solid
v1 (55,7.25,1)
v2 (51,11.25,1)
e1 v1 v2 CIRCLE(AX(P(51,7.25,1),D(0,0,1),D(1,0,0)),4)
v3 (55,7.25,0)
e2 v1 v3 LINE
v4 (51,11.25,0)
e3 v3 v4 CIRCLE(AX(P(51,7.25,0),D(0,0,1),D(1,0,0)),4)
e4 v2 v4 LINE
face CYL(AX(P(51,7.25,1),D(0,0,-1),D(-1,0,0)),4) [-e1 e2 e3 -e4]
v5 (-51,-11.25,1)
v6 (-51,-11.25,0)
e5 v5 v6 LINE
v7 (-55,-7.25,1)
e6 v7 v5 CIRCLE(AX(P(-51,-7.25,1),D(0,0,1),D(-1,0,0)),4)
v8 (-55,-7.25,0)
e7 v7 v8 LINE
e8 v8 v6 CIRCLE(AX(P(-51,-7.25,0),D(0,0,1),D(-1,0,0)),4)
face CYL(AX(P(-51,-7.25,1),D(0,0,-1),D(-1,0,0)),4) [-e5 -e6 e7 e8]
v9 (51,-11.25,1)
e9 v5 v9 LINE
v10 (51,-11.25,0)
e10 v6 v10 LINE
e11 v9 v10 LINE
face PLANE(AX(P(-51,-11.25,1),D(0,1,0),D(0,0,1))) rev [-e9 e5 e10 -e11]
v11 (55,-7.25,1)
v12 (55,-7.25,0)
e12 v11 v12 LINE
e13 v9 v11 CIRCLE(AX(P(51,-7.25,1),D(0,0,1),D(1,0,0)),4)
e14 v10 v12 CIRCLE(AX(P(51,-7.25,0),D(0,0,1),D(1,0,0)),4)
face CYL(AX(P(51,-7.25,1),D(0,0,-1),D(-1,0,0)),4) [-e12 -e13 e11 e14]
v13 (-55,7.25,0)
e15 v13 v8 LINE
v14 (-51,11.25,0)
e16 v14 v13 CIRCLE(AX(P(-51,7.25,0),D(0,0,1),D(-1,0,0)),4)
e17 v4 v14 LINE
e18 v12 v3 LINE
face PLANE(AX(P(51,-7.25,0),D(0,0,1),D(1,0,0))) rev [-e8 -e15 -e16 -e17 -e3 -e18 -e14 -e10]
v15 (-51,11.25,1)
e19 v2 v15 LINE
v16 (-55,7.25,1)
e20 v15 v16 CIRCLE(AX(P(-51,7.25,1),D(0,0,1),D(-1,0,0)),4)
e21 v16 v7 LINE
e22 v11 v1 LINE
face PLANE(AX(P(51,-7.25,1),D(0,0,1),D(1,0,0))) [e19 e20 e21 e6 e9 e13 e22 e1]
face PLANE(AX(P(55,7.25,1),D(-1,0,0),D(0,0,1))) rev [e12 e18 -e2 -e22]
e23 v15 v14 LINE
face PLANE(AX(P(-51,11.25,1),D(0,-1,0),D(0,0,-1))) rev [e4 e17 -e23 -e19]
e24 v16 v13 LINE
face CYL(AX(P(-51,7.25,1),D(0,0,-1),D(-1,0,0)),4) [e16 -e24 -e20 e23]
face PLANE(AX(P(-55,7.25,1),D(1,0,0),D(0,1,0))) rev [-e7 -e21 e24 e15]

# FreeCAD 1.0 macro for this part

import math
import FreeCAD as App
import Part
import Sketcher
from FreeCAD import Vector

doc = App.newDocument("Part")
params = doc.addObject("Spreadsheet::Sheet", "Params")
for row, (alias, value) in enumerate([
    ("sketch1_radius", "4 mm"),
    ("sketch1_width", "102 mm"),
    ("sketch1_height", "14.5 mm"),
    ("pad1_length", "1 mm"),
], start=1):
    params.set(f"A{row}", alias)
    params.set(f"B{row}", "=" + value)
    params.setAlias(f"B{row}", alias)

body = doc.addObject("PartDesign::Body", "Body")

# Sketch on XY plane
sketch1 = body.newObject("Sketcher::SketchObject", "Sketch")
sketch1.AttachmentSupport = (doc.getObject("XY_Plane"), [""])
sketch1.MapMode = "FlatFace"
sketch1.addGeometry(Part.LineSegment(Vector(51, 11.2, 0), Vector(-51, 11.2, 0)), False)
sketch1.addGeometry(Part.ArcOfCircle(Part.Circle(Vector(-51, 7.3, 0), Vector(0, 0, 1), 4), math.radians(90), math.radians(180)), False)
sketch1.addGeometry(Part.LineSegment(Vector(-55, 7.2, 0), Vector(-55, -7.2, 0)), False)
sketch1.addGeometry(Part.ArcOfCircle(Part.Circle(Vector(-51, -7.3, 0), Vector(0, 0, 1), 4), math.radians(180), math.radians(270)), False)
sketch1.addGeometry(Part.LineSegment(Vector(-51, -11.2, 0), Vector(51, -11.2, 0)), False)
sketch1.addGeometry(Part.ArcOfCircle(Part.Circle(Vector(51, -7.3, 0), Vector(0, 0, 1), 4), math.radians(-90), math.radians(0)), False)
sketch1.addGeometry(Part.LineSegment(Vector(55, -7.2, 0), Vector(55, 7.2, 0)), False)
sketch1.addGeometry(Part.ArcOfCircle(Part.Circle(Vector(51, 7.3, 0), Vector(0, 0, 1), 4), math.radians(0), math.radians(90)), False)
sketch1.addConstraint(Sketcher.Constraint("Tangent", 0, 2, 1, 1))
sketch1.addConstraint(Sketcher.Constraint("Tangent", 1, 2, 2, 1))
sketch1.addConstraint(Sketcher.Constraint("Tangent", 2, 2, 3, 1))
sketch1.addConstraint(Sketcher.Constraint("Tangent", 3, 2, 4, 1))
sketch1.addConstraint(Sketcher.Constraint("Tangent", 4, 2, 5, 1))
sketch1.addConstraint(Sketcher.Constraint("Tangent", 5, 2, 6, 1))
sketch1.addConstraint(Sketcher.Constraint("Tangent", 6, 2, 7, 1))
sketch1.addConstraint(Sketcher.Constraint("Tangent", 7, 2, 0, 1))
sketch1.addConstraint(Sketcher.Constraint("Horizontal", 0))
sketch1.addConstraint(Sketcher.Constraint("Vertical", 2))
sketch1.addConstraint(Sketcher.Constraint("Horizontal", 4))
sketch1.addConstraint(Sketcher.Constraint("Vertical", 6))
sketch1.addConstraint(Sketcher.Constraint("Equal", 1, 3))
sketch1.addConstraint(Sketcher.Constraint("Equal", 3, 5))
sketch1.addConstraint(Sketcher.Constraint("Equal", 5, 7))
sketch1.addConstraint(Sketcher.Constraint("Symmetric", 1, 3, 5, 3, -1, 1))
sketch1.addConstraint(Sketcher.Constraint("Radius", 1, 4.0))
sketch1.addConstraint(Sketcher.Constraint("DistanceX", 0, 2, 0, 1, 102.0))
sketch1.addConstraint(Sketcher.Constraint("DistanceY", 2, 2, 2, 1, 14.5))
sketch1.setExpression("Constraints[16]", "Params.sketch1_radius")
sketch1.setExpression("Constraints[17]", "Params.sketch1_width")
sketch1.setExpression("Constraints[18]", "Params.sketch1_height")
pad1 = body.newObject("PartDesign::Pad", "Pad")
pad1.Profile = sketch1
pad1.setExpression("Length", "Params.pad1_length")

doc.recompute()
